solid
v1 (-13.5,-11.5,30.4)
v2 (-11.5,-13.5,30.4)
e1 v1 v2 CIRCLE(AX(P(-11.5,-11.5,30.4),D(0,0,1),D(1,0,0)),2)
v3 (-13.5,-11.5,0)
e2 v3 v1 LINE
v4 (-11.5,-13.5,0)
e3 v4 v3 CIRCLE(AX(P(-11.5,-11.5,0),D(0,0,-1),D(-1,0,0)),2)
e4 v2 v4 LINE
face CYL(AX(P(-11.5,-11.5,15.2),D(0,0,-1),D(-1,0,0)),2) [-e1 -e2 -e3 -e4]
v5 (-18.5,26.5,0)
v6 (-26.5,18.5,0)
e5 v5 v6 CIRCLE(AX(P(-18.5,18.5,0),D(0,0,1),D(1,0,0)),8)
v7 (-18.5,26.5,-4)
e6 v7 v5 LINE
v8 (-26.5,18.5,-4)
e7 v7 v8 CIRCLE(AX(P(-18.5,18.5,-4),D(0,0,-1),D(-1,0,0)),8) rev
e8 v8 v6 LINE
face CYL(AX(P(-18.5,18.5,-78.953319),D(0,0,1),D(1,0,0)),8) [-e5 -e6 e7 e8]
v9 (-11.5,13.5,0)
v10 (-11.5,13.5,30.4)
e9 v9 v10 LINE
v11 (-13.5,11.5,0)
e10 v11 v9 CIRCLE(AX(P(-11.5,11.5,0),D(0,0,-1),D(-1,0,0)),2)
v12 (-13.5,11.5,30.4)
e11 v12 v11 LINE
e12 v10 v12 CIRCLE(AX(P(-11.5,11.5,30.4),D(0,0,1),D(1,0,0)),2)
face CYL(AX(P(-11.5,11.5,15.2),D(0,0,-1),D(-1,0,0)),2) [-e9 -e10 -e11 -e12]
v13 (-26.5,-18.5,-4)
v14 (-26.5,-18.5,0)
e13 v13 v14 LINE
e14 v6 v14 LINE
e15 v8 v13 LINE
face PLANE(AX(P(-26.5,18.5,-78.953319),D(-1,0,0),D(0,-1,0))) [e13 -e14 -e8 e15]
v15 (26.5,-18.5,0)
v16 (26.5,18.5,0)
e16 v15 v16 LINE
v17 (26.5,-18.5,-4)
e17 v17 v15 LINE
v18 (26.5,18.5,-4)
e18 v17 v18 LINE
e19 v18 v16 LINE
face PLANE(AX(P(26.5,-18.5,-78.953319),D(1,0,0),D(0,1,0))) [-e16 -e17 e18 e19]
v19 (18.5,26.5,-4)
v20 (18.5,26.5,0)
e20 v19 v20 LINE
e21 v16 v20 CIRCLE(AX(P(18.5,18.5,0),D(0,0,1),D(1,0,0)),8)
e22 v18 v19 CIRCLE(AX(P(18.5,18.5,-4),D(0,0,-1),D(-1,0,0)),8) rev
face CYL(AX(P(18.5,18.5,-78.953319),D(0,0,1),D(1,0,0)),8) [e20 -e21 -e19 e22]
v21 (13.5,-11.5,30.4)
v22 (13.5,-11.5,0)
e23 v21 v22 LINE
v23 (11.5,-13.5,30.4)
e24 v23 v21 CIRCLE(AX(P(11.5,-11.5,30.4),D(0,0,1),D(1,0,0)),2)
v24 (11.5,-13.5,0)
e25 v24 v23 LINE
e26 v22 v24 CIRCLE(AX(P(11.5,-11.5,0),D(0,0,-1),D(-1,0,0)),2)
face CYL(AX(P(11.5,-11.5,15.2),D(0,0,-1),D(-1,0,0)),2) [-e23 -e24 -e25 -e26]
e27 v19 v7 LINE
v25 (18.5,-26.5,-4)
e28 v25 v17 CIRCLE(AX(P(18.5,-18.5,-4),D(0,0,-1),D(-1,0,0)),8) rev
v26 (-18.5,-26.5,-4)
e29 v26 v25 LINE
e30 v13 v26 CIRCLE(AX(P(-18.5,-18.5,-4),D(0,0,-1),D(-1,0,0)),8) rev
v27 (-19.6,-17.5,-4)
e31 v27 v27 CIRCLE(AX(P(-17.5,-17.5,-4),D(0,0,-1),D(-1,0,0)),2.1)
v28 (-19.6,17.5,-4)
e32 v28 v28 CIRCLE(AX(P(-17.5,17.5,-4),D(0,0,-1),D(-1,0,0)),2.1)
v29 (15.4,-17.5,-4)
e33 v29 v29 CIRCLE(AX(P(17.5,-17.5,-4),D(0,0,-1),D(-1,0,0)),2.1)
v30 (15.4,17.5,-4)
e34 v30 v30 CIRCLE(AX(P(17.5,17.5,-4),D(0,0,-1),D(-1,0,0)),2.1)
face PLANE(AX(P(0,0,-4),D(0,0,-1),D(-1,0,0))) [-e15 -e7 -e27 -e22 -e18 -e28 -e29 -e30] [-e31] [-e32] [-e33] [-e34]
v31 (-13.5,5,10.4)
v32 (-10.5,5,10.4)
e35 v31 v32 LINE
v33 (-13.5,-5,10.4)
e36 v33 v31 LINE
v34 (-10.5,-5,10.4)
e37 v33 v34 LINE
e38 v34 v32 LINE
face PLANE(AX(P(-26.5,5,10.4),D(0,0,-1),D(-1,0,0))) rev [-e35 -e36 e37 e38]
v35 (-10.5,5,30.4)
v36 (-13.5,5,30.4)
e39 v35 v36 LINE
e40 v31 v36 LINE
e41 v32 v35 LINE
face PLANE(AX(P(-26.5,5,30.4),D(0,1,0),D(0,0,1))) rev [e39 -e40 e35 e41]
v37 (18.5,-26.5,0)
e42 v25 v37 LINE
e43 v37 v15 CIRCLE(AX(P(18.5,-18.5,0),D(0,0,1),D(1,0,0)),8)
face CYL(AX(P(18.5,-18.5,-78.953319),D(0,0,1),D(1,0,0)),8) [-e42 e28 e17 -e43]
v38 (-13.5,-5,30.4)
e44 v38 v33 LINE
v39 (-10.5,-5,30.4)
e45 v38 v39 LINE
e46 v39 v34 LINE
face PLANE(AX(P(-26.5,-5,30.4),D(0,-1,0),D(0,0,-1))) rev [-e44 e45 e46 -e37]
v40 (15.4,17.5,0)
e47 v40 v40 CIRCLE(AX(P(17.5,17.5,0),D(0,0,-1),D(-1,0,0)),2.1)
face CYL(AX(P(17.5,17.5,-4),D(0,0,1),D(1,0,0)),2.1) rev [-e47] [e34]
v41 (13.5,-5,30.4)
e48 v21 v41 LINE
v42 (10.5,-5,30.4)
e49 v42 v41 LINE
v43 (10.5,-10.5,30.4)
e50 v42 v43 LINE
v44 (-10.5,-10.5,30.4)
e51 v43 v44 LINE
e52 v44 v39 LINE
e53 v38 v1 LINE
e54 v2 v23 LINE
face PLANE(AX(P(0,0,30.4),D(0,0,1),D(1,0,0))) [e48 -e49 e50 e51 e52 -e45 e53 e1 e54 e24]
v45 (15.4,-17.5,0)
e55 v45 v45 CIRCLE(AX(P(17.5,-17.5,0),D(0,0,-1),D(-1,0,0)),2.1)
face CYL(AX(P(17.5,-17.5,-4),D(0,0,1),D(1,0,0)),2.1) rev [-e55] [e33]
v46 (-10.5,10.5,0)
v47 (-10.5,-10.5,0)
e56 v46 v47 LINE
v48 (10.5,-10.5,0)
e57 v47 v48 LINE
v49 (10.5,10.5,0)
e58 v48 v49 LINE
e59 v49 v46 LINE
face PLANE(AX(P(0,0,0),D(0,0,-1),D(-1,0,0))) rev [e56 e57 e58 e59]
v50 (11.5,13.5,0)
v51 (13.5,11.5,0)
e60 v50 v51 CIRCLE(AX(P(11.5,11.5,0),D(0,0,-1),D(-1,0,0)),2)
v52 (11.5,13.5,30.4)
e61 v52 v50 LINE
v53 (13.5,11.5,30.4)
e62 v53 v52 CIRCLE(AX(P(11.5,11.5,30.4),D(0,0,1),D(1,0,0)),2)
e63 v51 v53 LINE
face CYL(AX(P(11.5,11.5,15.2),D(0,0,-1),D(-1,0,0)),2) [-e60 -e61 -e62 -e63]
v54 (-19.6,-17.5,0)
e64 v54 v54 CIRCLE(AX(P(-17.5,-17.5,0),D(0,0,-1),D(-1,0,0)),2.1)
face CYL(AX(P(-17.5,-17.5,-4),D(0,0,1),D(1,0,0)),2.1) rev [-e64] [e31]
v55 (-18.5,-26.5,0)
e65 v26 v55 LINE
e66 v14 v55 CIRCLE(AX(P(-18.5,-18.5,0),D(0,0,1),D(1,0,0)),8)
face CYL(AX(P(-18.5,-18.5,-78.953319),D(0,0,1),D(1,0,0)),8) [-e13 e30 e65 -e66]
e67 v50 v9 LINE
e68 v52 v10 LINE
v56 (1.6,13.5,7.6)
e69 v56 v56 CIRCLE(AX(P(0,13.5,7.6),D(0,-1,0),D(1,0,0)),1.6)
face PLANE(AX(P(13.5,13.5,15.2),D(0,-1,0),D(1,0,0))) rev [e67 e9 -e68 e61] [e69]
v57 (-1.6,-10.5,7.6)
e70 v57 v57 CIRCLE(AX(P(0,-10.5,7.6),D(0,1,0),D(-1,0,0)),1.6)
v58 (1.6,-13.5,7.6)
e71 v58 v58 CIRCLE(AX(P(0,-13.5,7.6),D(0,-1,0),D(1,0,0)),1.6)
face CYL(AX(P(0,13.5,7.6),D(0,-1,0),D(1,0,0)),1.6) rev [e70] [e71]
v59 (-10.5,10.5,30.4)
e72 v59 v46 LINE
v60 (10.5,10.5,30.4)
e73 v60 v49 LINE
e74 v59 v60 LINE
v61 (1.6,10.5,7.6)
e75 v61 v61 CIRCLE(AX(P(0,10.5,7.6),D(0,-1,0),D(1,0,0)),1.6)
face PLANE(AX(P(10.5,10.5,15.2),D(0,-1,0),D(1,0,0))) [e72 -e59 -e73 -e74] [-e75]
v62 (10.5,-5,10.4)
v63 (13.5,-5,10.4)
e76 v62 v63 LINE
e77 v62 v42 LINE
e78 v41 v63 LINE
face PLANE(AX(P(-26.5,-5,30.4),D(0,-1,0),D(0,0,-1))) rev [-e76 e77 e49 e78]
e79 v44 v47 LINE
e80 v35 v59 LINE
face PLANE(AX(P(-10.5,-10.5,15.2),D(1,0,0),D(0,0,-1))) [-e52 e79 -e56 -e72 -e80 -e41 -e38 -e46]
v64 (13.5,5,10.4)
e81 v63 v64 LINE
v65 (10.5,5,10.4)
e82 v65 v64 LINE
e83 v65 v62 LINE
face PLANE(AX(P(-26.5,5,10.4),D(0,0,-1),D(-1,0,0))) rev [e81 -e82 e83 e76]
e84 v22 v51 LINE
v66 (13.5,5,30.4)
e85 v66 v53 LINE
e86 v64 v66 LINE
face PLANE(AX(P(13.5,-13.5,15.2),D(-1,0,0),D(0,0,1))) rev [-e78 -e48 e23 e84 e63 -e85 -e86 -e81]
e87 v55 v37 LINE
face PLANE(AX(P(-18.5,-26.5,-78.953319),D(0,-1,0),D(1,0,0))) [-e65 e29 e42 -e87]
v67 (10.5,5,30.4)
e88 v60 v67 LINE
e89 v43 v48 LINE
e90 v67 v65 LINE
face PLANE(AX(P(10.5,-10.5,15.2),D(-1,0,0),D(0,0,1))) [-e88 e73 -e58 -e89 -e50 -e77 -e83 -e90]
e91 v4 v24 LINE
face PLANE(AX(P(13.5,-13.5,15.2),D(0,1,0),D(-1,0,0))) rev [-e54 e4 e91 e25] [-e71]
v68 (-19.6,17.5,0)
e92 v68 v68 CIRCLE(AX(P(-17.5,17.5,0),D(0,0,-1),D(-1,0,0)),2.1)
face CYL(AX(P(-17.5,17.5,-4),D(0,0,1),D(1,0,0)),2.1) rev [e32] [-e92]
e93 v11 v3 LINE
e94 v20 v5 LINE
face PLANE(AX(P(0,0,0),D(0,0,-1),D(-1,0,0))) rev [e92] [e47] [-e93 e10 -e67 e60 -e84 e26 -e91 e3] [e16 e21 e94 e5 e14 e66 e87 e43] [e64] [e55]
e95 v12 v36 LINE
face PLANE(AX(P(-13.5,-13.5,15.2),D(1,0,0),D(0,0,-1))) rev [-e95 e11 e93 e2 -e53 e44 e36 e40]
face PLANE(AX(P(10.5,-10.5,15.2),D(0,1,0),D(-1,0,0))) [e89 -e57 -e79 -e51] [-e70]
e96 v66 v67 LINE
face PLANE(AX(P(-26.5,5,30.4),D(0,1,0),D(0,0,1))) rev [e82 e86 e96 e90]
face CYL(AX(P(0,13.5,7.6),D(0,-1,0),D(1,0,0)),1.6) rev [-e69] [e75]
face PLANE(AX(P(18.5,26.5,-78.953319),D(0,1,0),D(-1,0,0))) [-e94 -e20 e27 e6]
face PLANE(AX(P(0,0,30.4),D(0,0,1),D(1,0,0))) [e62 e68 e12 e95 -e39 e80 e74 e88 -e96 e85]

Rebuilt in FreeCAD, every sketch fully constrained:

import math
import FreeCAD as App
import Part
import Sketcher
Q = App.Units.Quantity


def edges_at(feature, points):
    """Names of the edges that pass closest to the given points."""
    edges = feature.Shape.Edges
    near = lambda p: min(range(len(edges)), key=lambda i: edges[i].distToShape(Part.Vertex(*p))[0])
    return sorted({f"Edge{near(p) + 1}" for p in points})

doc = App.newDocument("Part")
body = doc.addObject("PartDesign::Body", "Body")

# Sketch on XY plane
sketch1 = body.newObject("Sketcher::SketchObject", "Sketch")
sketch1.AttachmentSupport = (doc.getObject("XY_Plane"), [""])
sketch1.MapMode = "FlatFace"
sketch1.addGeometry([
    Part.LineSegment(App.Vector(-13.5, 13.5, 0), App.Vector(-13.5, -13.5, 0)),  # 0
    Part.LineSegment(App.Vector(-13.5, -13.5, 0), App.Vector(13.5, -13.5, 0)),  # 1
    Part.LineSegment(App.Vector(13.5, -13.5, 0), App.Vector(13.5, 13.5, 0)),  # 2
    Part.LineSegment(App.Vector(13.5, 13.5, 0), App.Vector(-13.5, 13.5, 0)),  # 3
    Part.LineSegment(App.Vector(10.5, -10.5, 0), App.Vector(-10.5, -10.5, 0)),  # 4
    Part.LineSegment(App.Vector(-10.5, -10.5, 0), App.Vector(-10.5, 10.5, 0)),  # 5
    Part.LineSegment(App.Vector(-10.5, 10.5, 0), App.Vector(10.5, 10.5, 0)),  # 6
    Part.LineSegment(App.Vector(10.5, 10.5, 0), App.Vector(10.5, -10.5, 0)),  # 7
], False)
sketch1.addConstraint([
    Sketcher.Constraint("Coincident", 0, 2, 1, 1),
    Sketcher.Constraint("Coincident", 1, 2, 2, 1),
    Sketcher.Constraint("Coincident", 2, 2, 3, 1),
    Sketcher.Constraint("Coincident", 3, 2, 0, 1),
    Sketcher.Constraint("Coincident", 4, 2, 5, 1),
    Sketcher.Constraint("Coincident", 5, 2, 6, 1),
    Sketcher.Constraint("Coincident", 6, 2, 7, 1),
    Sketcher.Constraint("Coincident", 7, 2, 4, 1),
    Sketcher.Constraint("Vertical", 0),
    Sketcher.Constraint("Horizontal", 1),
    Sketcher.Constraint("Vertical", 2),
    Sketcher.Constraint("Horizontal", 3),
    Sketcher.Constraint("Horizontal", 4),
    Sketcher.Constraint("Vertical", 5),
    Sketcher.Constraint("Horizontal", 6),
    Sketcher.Constraint("Vertical", 7),
    Sketcher.Constraint("Symmetric", 0, 2, 2, 2, -1, 1),
    Sketcher.Constraint("Symmetric", 4, 2, 6, 2, -1, 1),
    Sketcher.Constraint("Equal", 3, 0),
    Sketcher.Constraint("Equal", 6, 5),
    Sketcher.Constraint("DistanceX", 1, 1, 1, 2, Q("27 mm")),
    Sketcher.Constraint("DistanceX", 4, 2, 4, 1, Q("21 mm")),
])
pad1 = body.newObject("PartDesign::Pad", "Pad")
pad1.Profile = sketch1
pad1.Length = 15.2

# Sketch on XZ plane
sketch2 = body.newObject("Sketcher::SketchObject", "Sketch001")
sketch2.AttachmentSupport = (doc.getObject("XZ_Plane"), [""])
sketch2.MapMode = "FlatFace"
sketch2.AttachmentOffset = App.Placement(App.Vector(0, 0, 13.5), App.Rotation())
sketch2.addGeometry(Part.Circle(App.Vector(0, 7.6, 0), App.Vector(0, 0, 1), 1.6), False)
sketch2.addConstraint([
    Sketcher.Constraint("PointOnObject", 0, 3, -2),
    Sketcher.Constraint("Diameter", 0, Q("3.2 mm")),
    Sketcher.Constraint("DistanceY", -1, 1, 0, 3, Q("7.6 mm")),
])
pocket1 = body.newObject("PartDesign::Pocket", "Pocket")
pocket1.Profile = sketch2
pocket1.Type = "ThroughAll"

# Sketch on XY plane
sketch3 = body.newObject("Sketcher::SketchObject", "Sketch002")
sketch3.AttachmentSupport = (doc.getObject("XY_Plane"), [""])
sketch3.MapMode = "FlatFace"
sketch3.addGeometry([
    Part.LineSegment(App.Vector(-18.5, 21.5, 0), App.Vector(18.5, 21.5, 0)),  # 0
    Part.ArcOfCircle(Part.Circle(App.Vector(18.5, 18.5, 0), App.Vector(0, 0, 1), 3), math.radians(0), math.radians(90)),  # 1
    Part.LineSegment(App.Vector(21.5, 18.5, 0), App.Vector(21.5, -18.5, 0)),  # 2
    Part.ArcOfCircle(Part.Circle(App.Vector(18.5, -18.5, 0), App.Vector(0, 0, 1), 3), math.radians(-90), math.radians(0)),  # 3
    Part.LineSegment(App.Vector(18.5, -21.5, 0), App.Vector(-18.5, -21.5, 0)),  # 4
    Part.ArcOfCircle(Part.Circle(App.Vector(-18.5, -18.5, 0), App.Vector(0, 0, 1), 3), math.radians(180), math.radians(270)),  # 5
    Part.LineSegment(App.Vector(-21.5, -18.5, 0), App.Vector(-21.5, 18.5, 0)),  # 6
    Part.ArcOfCircle(Part.Circle(App.Vector(-18.5, 18.5, 0), App.Vector(0, 0, 1), 3), math.radians(90), math.radians(180)),  # 7
    Part.Circle(App.Vector(17.5, -17.5, 0), App.Vector(0, 0, 1), 2.1),  # 8
    Part.Circle(App.Vector(-17.5, -17.5, 0), App.Vector(0, 0, 1), 2.1),  # 9
    Part.Circle(App.Vector(17.5, 17.5, 0), App.Vector(0, 0, 1), 2.1),  # 10
    Part.Circle(App.Vector(-17.5, 17.5, 0), App.Vector(0, 0, 1), 2.1),  # 11
], False)
sketch3.addConstraint([
    Sketcher.Constraint("Tangent", 0, 2, 1, 2),
    Sketcher.Constraint("Tangent", 1, 1, 2, 1),
    Sketcher.Constraint("Tangent", 2, 2, 3, 2),
    Sketcher.Constraint("Tangent", 3, 1, 4, 1),
    Sketcher.Constraint("Tangent", 4, 2, 5, 2),
    Sketcher.Constraint("Tangent", 5, 1, 6, 1),
    Sketcher.Constraint("Tangent", 6, 2, 7, 2),
    Sketcher.Constraint("Tangent", 7, 1, 0, 1),
    Sketcher.Constraint("Horizontal", 0),
    Sketcher.Constraint("Vertical", 2),
    Sketcher.Constraint("Horizontal", 4),
    Sketcher.Constraint("Vertical", 6),
    Sketcher.Constraint("Equal", 1, 3),
    Sketcher.Constraint("Equal", 3, 5),
    Sketcher.Constraint("Equal", 5, 7),
    Sketcher.Constraint("Equal", 8, 9),
    Sketcher.Constraint("Equal", 9, 10),
    Sketcher.Constraint("Equal", 10, 11),
    Sketcher.Constraint("Symmetric", 1, 3, 5, 3, -1, 1),
    Sketcher.Constraint("Symmetric", 9, 3, 10, 3, -1, 1),
    Sketcher.Constraint("Symmetric", 8, 3, 11, 3, -1, 1),
    Sketcher.Constraint("Symmetric", 8, 3, 9, 3, -2),
    Sketcher.Constraint("Equal", 4, 2),
    Sketcher.Constraint("Radius", 1, Q("3 mm")),
    Sketcher.Constraint("Diameter", 8, Q("4.2 mm")),
    Sketcher.Constraint("DistanceX", 0, 1, 0, 2, Q("37 mm")),
    Sketcher.Constraint("DistanceX", 8, 3, 3, 3, Q("1 mm")),
    Sketcher.Constraint("DistanceY", 3, 3, 8, 3, Q("1 mm")),
])
pad2 = body.newObject("PartDesign::Pad", "Pad001")
pad2.Profile = sketch3
pad2.Length = 4
pad2.Reversed = True
doc.recompute()

fillet = body.newObject("PartDesign::Fillet", "Fillet")
fillet.Base = (pad2, edges_at(pad2, [
    (13.5, -13.5, 7.6),
    (-13.5, -13.5, 7.6),
    (-13.5, 13.5, 7.6),
    (13.5, 13.5, 7.6),
]))
fillet.Radius = 2

# Sketch on XY plane
sketch4 = body.newObject("Sketcher::SketchObject", "Sketch003")
sketch4.AttachmentSupport = (doc.getObject("XY_Plane"), [""])
sketch4.MapMode = "FlatFace"
sketch4.addGeometry([
    Part.LineSegment(App.Vector(18.5, 26.5, 0), App.Vector(-18.5, 26.5, 0)),  # 0
    Part.ArcOfCircle(Part.Circle(App.Vector(-18.5, 18.5, 0), App.Vector(0, 0, 1), 8), math.radians(90), math.radians(180)),  # 1
    Part.LineSegment(App.Vector(-26.5, 18.5, 0), App.Vector(-26.5, -18.5, 0)),  # 2
    Part.ArcOfCircle(Part.Circle(App.Vector(-18.5, -18.5, 0), App.Vector(0, 0, 1), 8), math.radians(-180), math.radians(-90)),  # 3
    Part.LineSegment(App.Vector(-18.5, -26.5, 0), App.Vector(18.5, -26.5, 0)),  # 4
    Part.ArcOfCircle(Part.Circle(App.Vector(18.5, -18.5, 0), App.Vector(0, 0, 1), 8), math.radians(-90), math.radians(0)),  # 5
    Part.LineSegment(App.Vector(26.5, -18.5, 0), App.Vector(26.5, 18.5, 0)),  # 6
    Part.ArcOfCircle(Part.Circle(App.Vector(18.5, 18.5, 0), App.Vector(0, 0, 1), 8), math.radians(0), math.radians(90)),  # 7
    Part.LineSegment(App.Vector(-18.5, 21.5, 0), App.Vector(18.5, 21.5, 0)),  # 8
    Part.ArcOfCircle(Part.Circle(App.Vector(18.5, 18.5, 0), App.Vector(0, 0, 1), 3), math.radians(0), math.radians(90)),  # 9
    Part.LineSegment(App.Vector(21.5, 18.5, 0), App.Vector(21.5, -18.5, 0)),  # 10
    Part.ArcOfCircle(Part.Circle(App.Vector(18.5, -18.5, 0), App.Vector(0, 0, 1), 3), math.radians(-90), math.radians(0)),  # 11
    Part.LineSegment(App.Vector(18.5, -21.5, 0), App.Vector(-18.5, -21.5, 0)),  # 12
    Part.ArcOfCircle(Part.Circle(App.Vector(-18.5, -18.5, 0), App.Vector(0, 0, 1), 3), math.radians(180), math.radians(270)),  # 13
    Part.LineSegment(App.Vector(-21.5, -18.5, 0), App.Vector(-21.5, 18.5, 0)),  # 14
    Part.ArcOfCircle(Part.Circle(App.Vector(-18.5, 18.5, 0), App.Vector(0, 0, 1), 3), math.radians(90), math.radians(180)),  # 15
], False)
sketch4.addConstraint([
    Sketcher.Constraint("Tangent", 0, 2, 1, 1),
    Sketcher.Constraint("Tangent", 1, 2, 2, 1),
    Sketcher.Constraint("Tangent", 2, 2, 3, 1),
    Sketcher.Constraint("Tangent", 3, 2, 4, 1),
    Sketcher.Constraint("Tangent", 4, 2, 5, 1),
    Sketcher.Constraint("Tangent", 5, 2, 6, 1),
    Sketcher.Constraint("Tangent", 6, 2, 7, 1),
    Sketcher.Constraint("Tangent", 7, 2, 0, 1),
    Sketcher.Constraint("Tangent", 8, 2, 9, 2),
    Sketcher.Constraint("Tangent", 9, 1, 10, 1),
    Sketcher.Constraint("Tangent", 10, 2, 11, 2),
    Sketcher.Constraint("Tangent", 11, 1, 12, 1),
    Sketcher.Constraint("Tangent", 12, 2, 13, 2),
    Sketcher.Constraint("Tangent", 13, 1, 14, 1),
    Sketcher.Constraint("Tangent", 14, 2, 15, 2),
    Sketcher.Constraint("Tangent", 15, 1, 8, 1),
    Sketcher.Constraint("Horizontal", 0),
    Sketcher.Constraint("Vertical", 2),
    Sketcher.Constraint("Horizontal", 4),
    Sketcher.Constraint("Vertical", 6),
    Sketcher.Constraint("Horizontal", 8),
    Sketcher.Constraint("Vertical", 10),
    Sketcher.Constraint("Horizontal", 12),
    Sketcher.Constraint("Vertical", 14),
    Sketcher.Constraint("Coincident", 9, 3, 7, 3),
    Sketcher.Constraint("Coincident", 11, 3, 5, 3),
    Sketcher.Constraint("Coincident", 13, 3, 3, 3),
    Sketcher.Constraint("Equal", 1, 3),
    Sketcher.Constraint("Equal", 3, 5),
    Sketcher.Constraint("Equal", 5, 7),
    Sketcher.Constraint("Equal", 13, 15),
    Sketcher.Constraint("Symmetric", 1, 3, 5, 3, -1, 1),
    Sketcher.Constraint("Equal", 12, 2),
    Sketcher.Constraint("Radius", 1, Q("8 mm")),
    Sketcher.Constraint("Radius", 9, Q("3 mm")),
    Sketcher.Constraint("DistanceX", 0, 2, 0, 1, Q("37 mm")),
])
pad3 = body.newObject("PartDesign::Pad", "Pad002")
pad3.Profile = sketch4
pad3.Length = 4
pad3.Reversed = True

# Sketch on XY plane
sketch5 = body.newObject("Sketcher::SketchObject", "Sketch004")
sketch5.AttachmentSupport = (doc.getObject("XY_Plane"), [""])
sketch5.MapMode = "FlatFace"
sketch5.AttachmentOffset = App.Placement(App.Vector(0, 0, 15.2), App.Rotation())
sketch5.addGeometry([
    Part.ArcOfCircle(Part.Circle(App.Vector(-11.5, 11.5, 0), App.Vector(0, 0, 1), 2), math.radians(90), math.radians(180)),  # 0
    Part.LineSegment(App.Vector(-13.5, 11.5, 0), App.Vector(-13.5, -11.5, 0)),  # 1
    Part.ArcOfCircle(Part.Circle(App.Vector(-11.5, -11.5, 0), App.Vector(0, 0, 1), 2), math.radians(-180), math.radians(-90)),  # 2
    Part.LineSegment(App.Vector(-11.5, -13.5, 0), App.Vector(11.5, -13.5, 0)),  # 3
    Part.ArcOfCircle(Part.Circle(App.Vector(11.5, -11.5, 0), App.Vector(0, 0, 1), 2), math.radians(-90), math.radians(0)),  # 4
    Part.LineSegment(App.Vector(13.5, -11.5, 0), App.Vector(13.5, 11.5, 0)),  # 5
    Part.ArcOfCircle(Part.Circle(App.Vector(11.5, 11.5, 0), App.Vector(0, 0, 1), 2), math.radians(0), math.radians(90)),  # 6
    Part.LineSegment(App.Vector(11.5, 13.5, 0), App.Vector(-11.5, 13.5, 0)),  # 7
    Part.LineSegment(App.Vector(10.5, -10.5, 0), App.Vector(-10.5, -10.5, 0)),  # 8
    Part.LineSegment(App.Vector(-10.5, -10.5, 0), App.Vector(-10.5, 10.5, 0)),  # 9
    Part.LineSegment(App.Vector(-10.5, 10.5, 0), App.Vector(10.5, 10.5, 0)),  # 10
    Part.LineSegment(App.Vector(10.5, 10.5, 0), App.Vector(10.5, -10.5, 0)),  # 11
], False)
sketch5.addConstraint([
    Sketcher.Constraint("Tangent", 0, 2, 1, 1),
    Sketcher.Constraint("Tangent", 1, 2, 2, 1),
    Sketcher.Constraint("Tangent", 2, 2, 3, 1),
    Sketcher.Constraint("Tangent", 3, 2, 4, 1),
    Sketcher.Constraint("Tangent", 4, 2, 5, 1),
    Sketcher.Constraint("Tangent", 5, 2, 6, 1),
    Sketcher.Constraint("Tangent", 6, 2, 7, 1),
    Sketcher.Constraint("Tangent", 7, 2, 0, 1),
    Sketcher.Constraint("Coincident", 8, 2, 9, 1),
    Sketcher.Constraint("Coincident", 9, 2, 10, 1),
    Sketcher.Constraint("Coincident", 10, 2, 11, 1),
    Sketcher.Constraint("Coincident", 11, 2, 8, 1),
    Sketcher.Constraint("Vertical", 1),
    Sketcher.Constraint("Horizontal", 3),
    Sketcher.Constraint("Vertical", 5),
    Sketcher.Constraint("Horizontal", 7),
    Sketcher.Constraint("Horizontal", 8),
    Sketcher.Constraint("Vertical", 9),
    Sketcher.Constraint("Horizontal", 10),
    Sketcher.Constraint("Vertical", 11),
    Sketcher.Constraint("Equal", 0, 2),
    Sketcher.Constraint("Equal", 2, 4),
    Sketcher.Constraint("Equal", 4, 6),
    Sketcher.Constraint("Symmetric", 0, 3, 4, 3, -1, 1),
    Sketcher.Constraint("Symmetric", 8, 2, 10, 2, -1, 1),
    Sketcher.Constraint("Equal", 7, 1),
    Sketcher.Constraint("Equal", 10, 9),
    Sketcher.Constraint("Radius", 0, Q("2 mm")),
    Sketcher.Constraint("DistanceX", 3, 1, 3, 2, Q("23 mm")),
    Sketcher.Constraint("DistanceX", 8, 2, 8, 1, Q("21 mm")),
])
pad4 = body.newObject("PartDesign::Pad", "Pad003")
pad4.Profile = sketch5
pad4.Length = 15.2

# Sketch on YZ plane
sketch6 = body.newObject("Sketcher::SketchObject", "Sketch005")
sketch6.AttachmentSupport = (doc.getObject("YZ_Plane"), [""])
sketch6.MapMode = "FlatFace"
sketch6.AttachmentOffset = App.Placement(App.Vector(0, 0, 13.5), App.Rotation())
sketch6.addGeometry([
    Part.LineSegment(App.Vector(5, 30.4, 0), App.Vector(-5, 30.4, 0)),
    Part.LineSegment(App.Vector(-5, 30.4, 0), App.Vector(-5, 10.4, 0)),
    Part.LineSegment(App.Vector(-5, 10.4, 0), App.Vector(5, 10.4, 0)),
    Part.LineSegment(App.Vector(5, 10.4, 0), App.Vector(5, 30.4, 0)),
], False)
sketch6.addConstraint([
    Sketcher.Constraint("Coincident", 0, 2, 1, 1),
    Sketcher.Constraint("Coincident", 1, 2, 2, 1),
    Sketcher.Constraint("Coincident", 2, 2, 3, 1),
    Sketcher.Constraint("Coincident", 3, 2, 0, 1),
    Sketcher.Constraint("Horizontal", 0),
    Sketcher.Constraint("Vertical", 1),
    Sketcher.Constraint("Horizontal", 2),
    Sketcher.Constraint("Vertical", 3),
    Sketcher.Constraint("DistanceX", 0, 2, 0, 1, Q("10 mm")),
    Sketcher.Constraint("DistanceY", 1, 2, 1, 1, Q("20 mm")),
    Sketcher.Constraint("DistanceX", 0, 2, -1, 1, Q("5 mm")),
    Sketcher.Constraint("DistanceY", -1, 1, 0, 2, Q("30.4 mm")),
])
pocket2 = body.newObject("PartDesign::Pocket", "Pocket001")
pocket2.Profile = sketch6
pocket2.Type = "ThroughAll"

doc.recompute()
